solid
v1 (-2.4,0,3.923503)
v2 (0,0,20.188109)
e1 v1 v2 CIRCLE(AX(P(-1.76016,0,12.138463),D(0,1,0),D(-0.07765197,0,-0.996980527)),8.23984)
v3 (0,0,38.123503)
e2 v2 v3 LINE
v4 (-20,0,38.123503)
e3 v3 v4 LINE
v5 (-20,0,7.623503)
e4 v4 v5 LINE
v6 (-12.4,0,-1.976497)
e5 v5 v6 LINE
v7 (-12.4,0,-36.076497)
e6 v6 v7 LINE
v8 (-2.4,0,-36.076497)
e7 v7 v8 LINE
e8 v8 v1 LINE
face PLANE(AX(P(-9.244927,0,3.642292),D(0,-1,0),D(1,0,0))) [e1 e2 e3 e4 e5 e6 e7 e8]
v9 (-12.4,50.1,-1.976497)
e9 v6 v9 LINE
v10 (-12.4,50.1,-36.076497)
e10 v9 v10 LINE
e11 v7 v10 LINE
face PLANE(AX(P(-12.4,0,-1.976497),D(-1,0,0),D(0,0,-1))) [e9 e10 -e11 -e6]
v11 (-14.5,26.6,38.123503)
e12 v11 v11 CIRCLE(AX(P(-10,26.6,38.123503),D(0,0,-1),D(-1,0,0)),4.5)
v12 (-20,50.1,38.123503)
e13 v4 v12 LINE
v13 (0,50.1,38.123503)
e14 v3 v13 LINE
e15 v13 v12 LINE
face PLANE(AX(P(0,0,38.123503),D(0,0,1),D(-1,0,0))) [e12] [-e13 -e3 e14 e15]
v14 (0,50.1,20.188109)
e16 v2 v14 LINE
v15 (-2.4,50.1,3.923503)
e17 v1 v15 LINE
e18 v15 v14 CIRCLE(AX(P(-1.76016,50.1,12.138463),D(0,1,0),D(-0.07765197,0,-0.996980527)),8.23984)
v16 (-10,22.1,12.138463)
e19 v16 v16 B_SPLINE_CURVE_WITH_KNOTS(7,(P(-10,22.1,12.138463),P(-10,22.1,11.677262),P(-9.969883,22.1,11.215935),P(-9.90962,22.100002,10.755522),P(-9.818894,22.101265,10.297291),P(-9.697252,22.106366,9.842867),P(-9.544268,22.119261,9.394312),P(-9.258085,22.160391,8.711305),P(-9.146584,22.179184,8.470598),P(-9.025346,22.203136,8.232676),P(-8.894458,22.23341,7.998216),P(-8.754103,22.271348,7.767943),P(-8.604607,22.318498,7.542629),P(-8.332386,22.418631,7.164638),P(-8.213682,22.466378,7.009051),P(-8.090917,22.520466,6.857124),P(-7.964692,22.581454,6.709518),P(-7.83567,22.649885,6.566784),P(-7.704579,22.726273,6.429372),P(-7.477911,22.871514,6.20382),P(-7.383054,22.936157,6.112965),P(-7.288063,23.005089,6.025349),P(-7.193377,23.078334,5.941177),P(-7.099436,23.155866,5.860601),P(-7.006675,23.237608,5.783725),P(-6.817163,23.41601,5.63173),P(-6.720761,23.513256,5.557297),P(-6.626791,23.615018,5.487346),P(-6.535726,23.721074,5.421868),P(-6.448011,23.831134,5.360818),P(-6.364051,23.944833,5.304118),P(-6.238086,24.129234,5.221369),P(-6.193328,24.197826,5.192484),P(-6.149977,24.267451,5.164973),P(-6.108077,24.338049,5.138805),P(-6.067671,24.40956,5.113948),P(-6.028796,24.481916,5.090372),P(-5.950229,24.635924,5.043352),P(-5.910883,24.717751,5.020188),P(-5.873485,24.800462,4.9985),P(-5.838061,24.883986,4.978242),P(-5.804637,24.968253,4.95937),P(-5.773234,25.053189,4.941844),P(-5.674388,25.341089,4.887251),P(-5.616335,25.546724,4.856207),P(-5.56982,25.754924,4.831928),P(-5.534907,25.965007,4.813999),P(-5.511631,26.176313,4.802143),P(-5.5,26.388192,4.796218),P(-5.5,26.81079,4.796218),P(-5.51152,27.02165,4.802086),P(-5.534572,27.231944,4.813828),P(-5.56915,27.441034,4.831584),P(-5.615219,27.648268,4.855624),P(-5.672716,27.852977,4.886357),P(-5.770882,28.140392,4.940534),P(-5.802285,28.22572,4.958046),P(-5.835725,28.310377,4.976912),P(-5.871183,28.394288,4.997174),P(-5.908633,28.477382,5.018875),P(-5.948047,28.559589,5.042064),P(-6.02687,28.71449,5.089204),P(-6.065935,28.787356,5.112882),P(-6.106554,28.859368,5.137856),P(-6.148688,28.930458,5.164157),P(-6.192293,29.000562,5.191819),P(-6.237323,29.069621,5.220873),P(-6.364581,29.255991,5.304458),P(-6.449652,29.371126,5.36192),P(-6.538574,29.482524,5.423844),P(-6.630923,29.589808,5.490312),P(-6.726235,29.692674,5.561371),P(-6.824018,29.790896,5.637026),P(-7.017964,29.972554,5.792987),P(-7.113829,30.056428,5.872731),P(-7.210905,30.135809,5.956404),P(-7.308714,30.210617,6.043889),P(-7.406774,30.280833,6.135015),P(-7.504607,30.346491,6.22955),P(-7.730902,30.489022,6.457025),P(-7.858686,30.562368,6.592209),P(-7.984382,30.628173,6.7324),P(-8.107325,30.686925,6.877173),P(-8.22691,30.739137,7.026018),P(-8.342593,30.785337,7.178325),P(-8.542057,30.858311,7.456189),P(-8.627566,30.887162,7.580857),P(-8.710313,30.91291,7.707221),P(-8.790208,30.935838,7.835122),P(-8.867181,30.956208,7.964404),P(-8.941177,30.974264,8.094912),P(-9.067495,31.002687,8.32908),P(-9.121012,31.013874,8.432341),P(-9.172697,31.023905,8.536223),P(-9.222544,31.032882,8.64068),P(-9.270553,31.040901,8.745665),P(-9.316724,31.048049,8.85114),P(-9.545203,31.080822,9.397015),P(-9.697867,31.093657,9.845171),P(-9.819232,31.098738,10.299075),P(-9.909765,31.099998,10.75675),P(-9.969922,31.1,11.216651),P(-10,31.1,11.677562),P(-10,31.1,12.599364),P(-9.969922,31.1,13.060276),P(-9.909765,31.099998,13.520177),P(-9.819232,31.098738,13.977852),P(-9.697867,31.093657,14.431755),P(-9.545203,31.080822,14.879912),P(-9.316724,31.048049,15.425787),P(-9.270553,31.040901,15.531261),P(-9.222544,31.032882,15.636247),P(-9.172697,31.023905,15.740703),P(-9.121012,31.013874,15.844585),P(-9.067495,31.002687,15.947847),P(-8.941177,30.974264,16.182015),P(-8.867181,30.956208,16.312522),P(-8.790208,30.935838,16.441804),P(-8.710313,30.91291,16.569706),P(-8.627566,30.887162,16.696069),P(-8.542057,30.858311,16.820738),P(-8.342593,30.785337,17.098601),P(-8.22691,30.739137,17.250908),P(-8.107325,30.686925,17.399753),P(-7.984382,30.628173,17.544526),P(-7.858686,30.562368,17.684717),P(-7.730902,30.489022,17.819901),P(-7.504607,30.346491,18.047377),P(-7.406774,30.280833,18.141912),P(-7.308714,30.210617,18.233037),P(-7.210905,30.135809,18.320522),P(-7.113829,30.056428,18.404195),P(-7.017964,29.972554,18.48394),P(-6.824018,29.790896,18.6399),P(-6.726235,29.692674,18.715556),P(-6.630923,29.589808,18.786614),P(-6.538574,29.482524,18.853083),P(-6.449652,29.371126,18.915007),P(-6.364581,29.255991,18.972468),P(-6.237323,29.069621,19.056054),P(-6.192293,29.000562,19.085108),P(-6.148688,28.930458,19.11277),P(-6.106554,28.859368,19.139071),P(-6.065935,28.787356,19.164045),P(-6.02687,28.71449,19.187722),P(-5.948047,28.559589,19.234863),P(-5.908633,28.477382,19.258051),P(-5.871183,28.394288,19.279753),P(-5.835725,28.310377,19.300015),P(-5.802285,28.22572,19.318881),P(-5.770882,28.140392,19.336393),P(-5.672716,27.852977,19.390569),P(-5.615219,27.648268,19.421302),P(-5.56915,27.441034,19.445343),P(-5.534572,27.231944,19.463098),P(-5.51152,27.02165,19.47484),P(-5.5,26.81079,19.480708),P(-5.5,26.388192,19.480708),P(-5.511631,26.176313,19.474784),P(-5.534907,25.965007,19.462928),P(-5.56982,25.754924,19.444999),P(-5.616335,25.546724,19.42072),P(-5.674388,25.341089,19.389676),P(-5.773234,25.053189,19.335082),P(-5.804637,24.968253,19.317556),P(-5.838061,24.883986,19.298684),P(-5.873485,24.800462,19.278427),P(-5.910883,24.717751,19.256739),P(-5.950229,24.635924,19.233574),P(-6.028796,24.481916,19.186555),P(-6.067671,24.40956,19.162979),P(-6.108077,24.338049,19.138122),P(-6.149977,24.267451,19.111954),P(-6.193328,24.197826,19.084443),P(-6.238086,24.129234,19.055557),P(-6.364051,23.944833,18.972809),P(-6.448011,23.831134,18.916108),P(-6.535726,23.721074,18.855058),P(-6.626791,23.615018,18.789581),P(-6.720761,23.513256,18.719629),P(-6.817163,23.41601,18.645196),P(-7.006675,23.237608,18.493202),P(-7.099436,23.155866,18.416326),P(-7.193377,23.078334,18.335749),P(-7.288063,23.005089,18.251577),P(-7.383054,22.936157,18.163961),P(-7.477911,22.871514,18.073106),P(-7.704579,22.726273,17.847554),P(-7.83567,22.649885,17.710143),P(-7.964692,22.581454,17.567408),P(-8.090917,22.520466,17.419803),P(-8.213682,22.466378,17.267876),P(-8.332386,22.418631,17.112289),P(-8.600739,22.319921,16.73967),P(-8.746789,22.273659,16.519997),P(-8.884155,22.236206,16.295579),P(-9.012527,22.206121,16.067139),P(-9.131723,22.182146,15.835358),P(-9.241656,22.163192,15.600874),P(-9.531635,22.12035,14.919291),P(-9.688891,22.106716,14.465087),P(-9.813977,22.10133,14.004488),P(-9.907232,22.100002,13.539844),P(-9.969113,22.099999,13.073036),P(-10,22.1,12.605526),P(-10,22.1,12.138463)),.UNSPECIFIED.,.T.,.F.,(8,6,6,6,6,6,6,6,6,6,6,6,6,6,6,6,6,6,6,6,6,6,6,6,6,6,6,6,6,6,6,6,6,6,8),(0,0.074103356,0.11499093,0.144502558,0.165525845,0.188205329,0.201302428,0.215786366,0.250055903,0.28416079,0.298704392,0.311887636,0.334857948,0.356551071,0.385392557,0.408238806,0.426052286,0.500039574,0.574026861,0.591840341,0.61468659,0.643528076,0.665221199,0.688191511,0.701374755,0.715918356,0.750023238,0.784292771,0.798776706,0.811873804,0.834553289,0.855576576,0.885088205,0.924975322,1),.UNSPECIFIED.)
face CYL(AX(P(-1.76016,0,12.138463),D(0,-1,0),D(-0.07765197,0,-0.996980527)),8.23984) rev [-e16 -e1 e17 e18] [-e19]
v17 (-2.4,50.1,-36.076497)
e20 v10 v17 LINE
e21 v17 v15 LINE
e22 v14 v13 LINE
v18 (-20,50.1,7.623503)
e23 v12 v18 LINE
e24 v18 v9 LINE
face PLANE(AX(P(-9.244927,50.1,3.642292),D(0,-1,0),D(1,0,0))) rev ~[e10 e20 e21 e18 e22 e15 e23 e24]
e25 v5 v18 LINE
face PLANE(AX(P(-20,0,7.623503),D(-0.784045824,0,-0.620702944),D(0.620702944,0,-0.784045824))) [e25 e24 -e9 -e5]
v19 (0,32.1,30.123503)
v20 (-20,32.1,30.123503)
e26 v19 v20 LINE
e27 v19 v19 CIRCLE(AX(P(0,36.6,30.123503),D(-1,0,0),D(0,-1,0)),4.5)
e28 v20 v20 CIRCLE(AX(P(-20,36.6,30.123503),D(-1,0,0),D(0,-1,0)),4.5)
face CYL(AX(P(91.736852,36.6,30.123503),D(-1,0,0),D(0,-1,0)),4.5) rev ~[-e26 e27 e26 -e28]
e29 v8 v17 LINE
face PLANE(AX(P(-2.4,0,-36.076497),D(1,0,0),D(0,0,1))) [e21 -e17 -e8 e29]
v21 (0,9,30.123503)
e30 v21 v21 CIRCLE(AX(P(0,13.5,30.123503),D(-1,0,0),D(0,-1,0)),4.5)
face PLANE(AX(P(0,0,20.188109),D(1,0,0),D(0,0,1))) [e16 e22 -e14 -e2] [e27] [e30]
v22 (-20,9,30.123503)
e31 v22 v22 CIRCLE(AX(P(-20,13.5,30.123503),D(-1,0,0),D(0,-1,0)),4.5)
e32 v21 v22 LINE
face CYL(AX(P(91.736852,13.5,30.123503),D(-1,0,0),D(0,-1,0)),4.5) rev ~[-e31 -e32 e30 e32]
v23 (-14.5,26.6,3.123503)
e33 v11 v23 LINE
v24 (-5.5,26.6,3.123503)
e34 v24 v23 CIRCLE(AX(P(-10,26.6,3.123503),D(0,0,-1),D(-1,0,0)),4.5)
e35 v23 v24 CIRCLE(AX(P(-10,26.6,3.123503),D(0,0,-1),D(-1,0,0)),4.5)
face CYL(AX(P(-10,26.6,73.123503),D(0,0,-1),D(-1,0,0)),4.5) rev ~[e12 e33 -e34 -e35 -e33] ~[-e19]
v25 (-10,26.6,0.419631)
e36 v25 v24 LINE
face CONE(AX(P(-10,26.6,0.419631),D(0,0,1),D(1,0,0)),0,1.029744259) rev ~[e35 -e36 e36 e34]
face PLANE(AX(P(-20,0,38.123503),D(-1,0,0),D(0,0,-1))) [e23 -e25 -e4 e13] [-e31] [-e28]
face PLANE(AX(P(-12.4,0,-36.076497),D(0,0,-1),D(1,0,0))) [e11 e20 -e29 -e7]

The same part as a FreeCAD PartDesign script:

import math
import FreeCAD as App
import Part
import Sketcher

doc = App.newDocument("Part")
body = doc.addObject("PartDesign::Body", "Body")

# Sketch on XZ plane
sketch1 = doc.addObject("Sketcher::SketchObject", "Sketch")
body.addObject(sketch1)
sketch1.AttachmentSupport = (doc.XZ_Plane, [""])
sketch1.MapMode = "FlatFace"
sketch1.addGeometry([
    Part.LineSegment(App.Vector(0, 20, 0), App.Vector(0, 38, 0)),  # 0
    Part.LineSegment(App.Vector(0, 38, 0), App.Vector(-20, 38, 0)),  # 1
    Part.LineSegment(App.Vector(-20, 38, 0), App.Vector(-20, 8, 0)),  # 2
    Part.LineSegment(App.Vector(-20, 8, 0), App.Vector(-12, -2, 0)),  # 3
    Part.LineSegment(App.Vector(-12, -2, 0), App.Vector(-12, -36, 0)),  # 4
    Part.LineSegment(App.Vector(-12, -36, 0), App.Vector(-2, -36, 0)),  # 5
    Part.LineSegment(App.Vector(-2, -36, 0), App.Vector(-2, 4, 0)),  # 6
    Part.ArcOfCircle(Part.Circle(App.Vector(-2, 12, 0), App.Vector(0, 0, 1), 8), math.radians(78), math.radians(266)),  # 7
], False)
sketch1.addConstraint([
    Sketcher.Constraint("Coincident", 0, 2, 1, 1),
    Sketcher.Constraint("Coincident", 1, 2, 2, 1),
    Sketcher.Constraint("Coincident", 2, 2, 3, 1),
    Sketcher.Constraint("Coincident", 3, 2, 4, 1),
    Sketcher.Constraint("Coincident", 4, 2, 5, 1),
    Sketcher.Constraint("Coincident", 5, 2, 6, 1),
    Sketcher.Constraint("Coincident", 6, 2, 7, 2),
    Sketcher.Constraint("Coincident", 7, 1, 0, 1),
    Sketcher.Constraint("Vertical", 0),
    Sketcher.Constraint("Horizontal", 1),
    Sketcher.Constraint("Vertical", 2),
    Sketcher.Constraint("Vertical", 4),
    Sketcher.Constraint("Horizontal", 5),
    Sketcher.Constraint("Vertical", 6),
    Sketcher.Constraint("PointOnObject", 0, 2, -2),
    Sketcher.Constraint("DistanceX", 1, 2, 1, 1, 20.0),
    Sketcher.Constraint("DistanceX", 5, 1, 5, 2, 10.0),
    Sketcher.Constraint("DistanceY", 6, 1, 6, 2, 40.0),
    Sketcher.Constraint("DistanceY", 2, 2, 2, 1, 30.5),
    Sketcher.Constraint("DistanceY", 4, 2, 4, 1, 34.1),
    Sketcher.Constraint("DistanceX", 3, 2, -1, 1, 12.4),
    Sketcher.Constraint("DistanceY", 3, 2, 2, 2, 9.6),
    Sketcher.Constraint("Radius", 7, 8.23984),
    Sketcher.Constraint("DistanceY", 0, 1, 0, 2, 17.935394),
    Sketcher.Constraint("DistanceY", -1, 1, 7, 1, 20.188109),
])
pad1 = doc.addObject("PartDesign::Pad", "Pad")
body.addObject(pad1)
pad1.Profile = sketch1
pad1.Length = 50.1
pad1.Reversed = True

# Sketch on YZ plane
sketch2 = doc.addObject("Sketcher::SketchObject", "Sketch001")
body.addObject(sketch2)
sketch2.AttachmentSupport = (doc.YZ_Plane, [""])
sketch2.MapMode = "FlatFace"
sketch2.addGeometry([
    Part.Circle(App.Vector(13.5, 30.1, 0), App.Vector(0, 0, 1), 4.5),
    Part.Circle(App.Vector(36.6, 30.1, 0), App.Vector(0, 0, 1), 4.5),
], False)
sketch2.addConstraint([
    Sketcher.Constraint("Equal", 0, 1),
    Sketcher.Constraint("Horizontal", 0, 3, 1, 3),
    Sketcher.Constraint("Diameter", 0, 9.0),
    Sketcher.Constraint("DistanceX", -1, 1, 0, 3, 13.5),
    Sketcher.Constraint("DistanceX", -1, 1, 1, 3, 36.6),
    Sketcher.Constraint("DistanceY", -1, 1, 0, 3, 30.123503),
])
doc.recompute()
hole = doc.addObject("PartDesign::Hole", "Hole")
body.addObject(hole)
hole.Profile = sketch2
hole.ThreadType = "None"
hole.Diameter = 9
hole.DepthType = "ThroughAll"

# Sketch on XY plane
sketch3 = doc.addObject("Sketcher::SketchObject", "Sketch002")
body.addObject(sketch3)
sketch3.AttachmentSupport = (doc.XY_Plane, [""])
sketch3.MapMode = "FlatFace"
sketch3.AttachmentOffset = App.Placement(App.Vector(0, 0, 38.123503), App.Rotation())
sketch3.addGeometry(Part.Circle(App.Vector(-10, 26.6, 0), App.Vector(0, 0, 1), 4.5), False)
sketch3.addConstraint([
    Sketcher.Constraint("Diameter", 0, 9.0),
    Sketcher.Constraint("DistanceX", 0, 3, -1, 1, 10.0),
    Sketcher.Constraint("DistanceY", -1, 1, 0, 3, 26.6),
])
doc.recompute()
hole2 = doc.addObject("PartDesign::Hole", "Hole001")
body.addObject(hole2)
hole2.Profile = sketch3
hole2.ThreadType = "None"
hole2.Diameter = 9
hole2.DepthType = "Dimension"
hole2.Depth = 35
hole2.DrillPoint = "Angled"
hole2.DrillPointAngle = 118

doc.recompute()
